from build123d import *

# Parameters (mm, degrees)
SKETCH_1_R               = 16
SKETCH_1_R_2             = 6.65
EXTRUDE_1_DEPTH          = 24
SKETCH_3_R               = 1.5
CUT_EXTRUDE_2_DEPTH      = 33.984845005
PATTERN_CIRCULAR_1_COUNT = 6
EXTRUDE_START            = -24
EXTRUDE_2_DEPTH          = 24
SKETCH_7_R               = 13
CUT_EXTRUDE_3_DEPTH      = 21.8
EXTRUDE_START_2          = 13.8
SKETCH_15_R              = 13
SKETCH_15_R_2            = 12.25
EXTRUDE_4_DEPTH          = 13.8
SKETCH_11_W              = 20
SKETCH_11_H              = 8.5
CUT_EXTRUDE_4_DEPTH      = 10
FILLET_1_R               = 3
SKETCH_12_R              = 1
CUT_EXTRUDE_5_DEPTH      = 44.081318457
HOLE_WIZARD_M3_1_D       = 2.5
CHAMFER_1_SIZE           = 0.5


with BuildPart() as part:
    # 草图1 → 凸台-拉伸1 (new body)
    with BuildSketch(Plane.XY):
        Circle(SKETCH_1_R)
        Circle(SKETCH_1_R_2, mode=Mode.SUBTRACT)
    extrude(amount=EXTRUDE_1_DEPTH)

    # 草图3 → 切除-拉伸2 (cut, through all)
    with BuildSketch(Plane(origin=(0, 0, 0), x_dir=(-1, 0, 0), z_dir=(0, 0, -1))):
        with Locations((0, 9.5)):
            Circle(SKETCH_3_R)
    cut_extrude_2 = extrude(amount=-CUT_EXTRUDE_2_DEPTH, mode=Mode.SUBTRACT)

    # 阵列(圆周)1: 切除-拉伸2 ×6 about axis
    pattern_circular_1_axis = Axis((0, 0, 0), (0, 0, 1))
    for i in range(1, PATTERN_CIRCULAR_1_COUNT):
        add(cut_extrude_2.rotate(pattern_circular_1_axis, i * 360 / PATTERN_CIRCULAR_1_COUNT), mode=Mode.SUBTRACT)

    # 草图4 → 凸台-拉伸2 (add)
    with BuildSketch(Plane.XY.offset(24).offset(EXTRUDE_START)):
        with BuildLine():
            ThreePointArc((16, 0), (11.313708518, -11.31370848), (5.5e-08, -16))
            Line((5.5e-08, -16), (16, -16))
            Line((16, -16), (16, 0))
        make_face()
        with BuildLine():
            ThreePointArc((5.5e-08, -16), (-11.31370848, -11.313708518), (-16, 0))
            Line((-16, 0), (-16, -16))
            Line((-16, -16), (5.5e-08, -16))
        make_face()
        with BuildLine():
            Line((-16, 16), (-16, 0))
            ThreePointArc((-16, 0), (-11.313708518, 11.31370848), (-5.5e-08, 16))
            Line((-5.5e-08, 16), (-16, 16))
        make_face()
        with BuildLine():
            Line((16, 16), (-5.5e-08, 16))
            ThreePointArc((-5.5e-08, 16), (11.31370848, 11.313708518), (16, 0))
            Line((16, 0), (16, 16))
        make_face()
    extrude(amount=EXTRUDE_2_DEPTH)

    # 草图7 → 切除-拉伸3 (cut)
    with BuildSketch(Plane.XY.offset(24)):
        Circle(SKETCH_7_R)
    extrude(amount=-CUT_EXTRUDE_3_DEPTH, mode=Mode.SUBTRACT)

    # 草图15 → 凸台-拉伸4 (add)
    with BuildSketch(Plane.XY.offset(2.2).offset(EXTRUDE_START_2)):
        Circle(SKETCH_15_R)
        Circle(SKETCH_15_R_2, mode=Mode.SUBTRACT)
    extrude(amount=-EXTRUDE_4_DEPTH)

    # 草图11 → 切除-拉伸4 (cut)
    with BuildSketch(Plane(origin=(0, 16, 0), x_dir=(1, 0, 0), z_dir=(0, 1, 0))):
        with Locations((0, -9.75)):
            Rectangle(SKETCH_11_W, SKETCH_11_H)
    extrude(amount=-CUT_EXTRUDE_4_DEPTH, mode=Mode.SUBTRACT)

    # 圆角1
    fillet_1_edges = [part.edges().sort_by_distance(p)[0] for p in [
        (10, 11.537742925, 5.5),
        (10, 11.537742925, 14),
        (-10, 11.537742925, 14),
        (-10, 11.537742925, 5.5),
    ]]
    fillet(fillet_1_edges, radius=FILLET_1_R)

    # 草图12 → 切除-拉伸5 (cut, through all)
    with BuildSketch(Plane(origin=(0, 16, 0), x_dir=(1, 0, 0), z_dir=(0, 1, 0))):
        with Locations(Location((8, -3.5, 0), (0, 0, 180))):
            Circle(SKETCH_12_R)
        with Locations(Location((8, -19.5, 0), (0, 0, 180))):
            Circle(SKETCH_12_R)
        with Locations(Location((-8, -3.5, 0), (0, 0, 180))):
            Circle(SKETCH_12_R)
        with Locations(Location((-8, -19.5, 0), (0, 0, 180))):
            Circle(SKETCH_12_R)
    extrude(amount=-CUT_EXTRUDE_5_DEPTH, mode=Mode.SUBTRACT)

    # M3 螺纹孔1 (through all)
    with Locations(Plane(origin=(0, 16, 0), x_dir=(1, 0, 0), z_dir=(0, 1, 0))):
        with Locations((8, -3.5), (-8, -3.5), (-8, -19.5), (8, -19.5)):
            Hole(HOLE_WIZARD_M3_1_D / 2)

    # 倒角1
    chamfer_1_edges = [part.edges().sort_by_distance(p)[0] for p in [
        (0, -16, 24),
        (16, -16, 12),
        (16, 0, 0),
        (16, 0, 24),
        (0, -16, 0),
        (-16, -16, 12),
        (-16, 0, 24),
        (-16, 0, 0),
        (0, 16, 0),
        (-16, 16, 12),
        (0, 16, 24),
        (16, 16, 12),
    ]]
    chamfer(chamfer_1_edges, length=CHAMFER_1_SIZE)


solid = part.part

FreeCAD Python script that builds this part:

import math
import FreeCAD as App
import Part
import Sketcher

V = App.Vector


def edges_at(feature, points):
    """Names of the edges that pass closest to the given points."""
    edges = feature.Shape.Edges
    near = lambda p: min(range(len(edges)), key=lambda i: edges[i].distToShape(Part.Vertex(*p))[0])
    return sorted({f"Edge{near(p) + 1}" for p in points})


def add_polygon(sketch, points):
    """Adds a closed chain of lines whose ends are joined by coincident constraints."""
    first, n = sketch.GeometryCount, len(points)
    for a, b in zip(points, points[1:] + points[:1]):
        sketch.addGeometry(Part.LineSegment(App.Vector(*a, 0), App.Vector(*b, 0)), False)
    for i in range(n):
        sketch.addConstraint(Sketcher.Constraint("Coincident", first + i, 2, first + (i + 1) % n, 1))

doc = App.newDocument("Part")
body = doc.addObject("PartDesign::Body", "Body")

# Sketch on XY plane
sketch1 = body.newObject("Sketcher::SketchObject", "Sketch")
sketch1.AttachmentSupport = (doc.getObject("XY_Plane"), [""])
sketch1.MapMode = "FlatFace"
sketch1.addGeometry([
    Part.Circle(V(0, 0, 0), V(0, 0, 1), 16),
    Part.Circle(V(0, 0, 0), V(0, 0, 1), 7),
], False)
sketch1.addConstraint([
    Sketcher.Constraint("Coincident", 0, 3, -1, 1),
    Sketcher.Constraint("Coincident", 1, 3, -1, 1),
    Sketcher.Constraint("Diameter", 0, 32.0),
    Sketcher.Constraint("Diameter", 1, 13.3),
])
pad1 = body.newObject("PartDesign::Pad", "Pad")
pad1.Profile = sketch1
pad1.Length = 24

# Sketch on XY plane
sketch2 = body.newObject("Sketcher::SketchObject", "Sketch001")
sketch2.AttachmentSupport = (doc.getObject("XY_Plane"), [""])
sketch2.MapMode = "FlatFace"
sketch2.addGeometry(Part.Circle(V(0, 9.5, 0), V(0, 0, 1), 1.5), False)
sketch2.addConstraint([
    Sketcher.Constraint("PointOnObject", 0, 3, -2),
    Sketcher.Constraint("Diameter", 0, 3.0),
    Sketcher.Constraint("DistanceY", -1, 1, 0, 3, 9.5),
])
pocket1 = body.newObject("PartDesign::Pocket", "Pocket")
pocket1.Profile = sketch2
pocket1.Type = "ThroughAll"
pocket1.Reversed = True
doc.recompute()

polarpattern = body.newObject("PartDesign::PolarPattern", "PolarPattern")
polarpattern.Originals = [pocket1]
polarpattern.Axis = (doc.getObject("Z_Axis"), [""])
polarpattern.Angle = 360
polarpattern.Occurrences = 6
body.Tip = polarpattern

# Sketch on XY plane
sketch3 = body.newObject("Sketcher::SketchObject", "Sketch002")
sketch3.AttachmentSupport = (doc.getObject("XY_Plane"), [""])
sketch3.MapMode = "FlatFace"
sketch3.addGeometry([
    Part.ArcOfCircle(Part.Circle(V(0, 0, 0), V(0, 0, 1), 16), math.radians(-90), math.radians(0)),  # 0
    Part.LineSegment(V(0, -16, 0), V(16, -16, 0)),  # 1
    Part.LineSegment(V(16, -16, 0), V(16, 0, 0)),  # 2
    Part.ArcOfCircle(Part.Circle(V(0, 0, 0), V(0, 0, 1), 16), math.radians(180), math.radians(270)),  # 3
    Part.LineSegment(V(-16, 0, 0), V(-16, -16, 0)),  # 4
    Part.LineSegment(V(-16, -16, 0), V(0, -16, 0)),  # 5
    Part.LineSegment(V(-16, 16, 0), V(-16, 0, 0)),  # 6
    Part.ArcOfCircle(Part.Circle(V(0, 0, 0), V(0, 0, 1), 16), math.radians(90), math.radians(180)),  # 7
    Part.LineSegment(V(0, 16, 0), V(-16, 16, 0)),  # 8
    Part.LineSegment(V(16, 16, 0), V(0, 16, 0)),  # 9
    Part.ArcOfCircle(Part.Circle(V(0, 0, 0), V(0, 0, 1), 16), math.radians(0), math.radians(90)),  # 10
    Part.LineSegment(V(16, 0, 0), V(16, 16, 0)),  # 11
], False)
sketch3.addConstraint([
    Sketcher.Constraint("Tangent", 0, 1, 1, 1),
    Sketcher.Constraint("Coincident", 1, 2, 2, 1),
    Sketcher.Constraint("Tangent", 2, 2, 0, 2),
    Sketcher.Constraint("Tangent", 3, 1, 4, 1),
    Sketcher.Constraint("Coincident", 4, 2, 5, 1),
    Sketcher.Constraint("Tangent", 5, 2, 3, 2),
    Sketcher.Constraint("Tangent", 6, 2, 7, 2),
    Sketcher.Constraint("Tangent", 7, 1, 8, 1),
    Sketcher.Constraint("Coincident", 8, 2, 6, 1),
    Sketcher.Constraint("Tangent", 9, 2, 10, 2),
    Sketcher.Constraint("Tangent", 10, 1, 11, 1),
    Sketcher.Constraint("Coincident", 11, 2, 9, 1),
    Sketcher.Constraint("Horizontal", 1),
    Sketcher.Constraint("Vertical", 2),
    Sketcher.Constraint("Vertical", 4),
    Sketcher.Constraint("Horizontal", 5),
    Sketcher.Constraint("Vertical", 6),
    Sketcher.Constraint("Horizontal", 8),
    Sketcher.Constraint("Horizontal", 9),
    Sketcher.Constraint("Vertical", 11),
    Sketcher.Constraint("Coincident", 0, 3, -1, 1),
    Sketcher.Constraint("Coincident", 3, 3, -1, 1),
    Sketcher.Constraint("Coincident", 7, 3, -1, 1),
    Sketcher.Constraint("Coincident", 10, 3, -1, 1),
    Sketcher.Constraint("Equal", 0, 3),
    Sketcher.Constraint("Equal", 3, 7),
    Sketcher.Constraint("Equal", 7, 10),
    Sketcher.Constraint("Radius", 0, 16.0),
])
pad2 = body.newObject("PartDesign::Pad", "Pad001")
pad2.Profile = sketch3
pad2.Length = 24

# Sketch on XY plane
sketch4 = body.newObject("Sketcher::SketchObject", "Sketch003")
sketch4.AttachmentSupport = (doc.getObject("XY_Plane"), [""])
sketch4.MapMode = "FlatFace"
sketch4.AttachmentOffset = App.Placement(V(0, 0, 24), App.Rotation())
sketch4.addGeometry(Part.Circle(V(0, 0, 0), V(0, 0, 1), 13), False)
sketch4.addConstraint([
    Sketcher.Constraint("Coincident", 0, 3, -1, 1),
    Sketcher.Constraint("Diameter", 0, 26.0),
])
pocket2 = body.newObject("PartDesign::Pocket", "Pocket001")
pocket2.Profile = sketch4
pocket2.Length = 21.8

# Sketch on XY plane
sketch5 = body.newObject("Sketcher::SketchObject", "Sketch004")
sketch5.AttachmentSupport = (doc.getObject("XY_Plane"), [""])
sketch5.MapMode = "FlatFace"
sketch5.AttachmentOffset = App.Placement(V(0, 0, 16), App.Rotation())
sketch5.addGeometry([
    Part.Circle(V(0, 0, 0), V(0, 0, 1), 13),
    Part.Circle(V(0, 0, 0), V(0, 0, 1), 12),
], False)
sketch5.addConstraint([
    Sketcher.Constraint("Coincident", 0, 3, -1, 1),
    Sketcher.Constraint("Coincident", 1, 3, -1, 1),
    Sketcher.Constraint("Diameter", 0, 26.0),
    Sketcher.Constraint("Diameter", 1, 24.5),
])
pad3 = body.newObject("PartDesign::Pad", "Pad002")
pad3.Profile = sketch5
pad3.Length = 13.8
pad3.Reversed = True

# Sketch on XZ plane
sketch6 = body.newObject("Sketcher::SketchObject", "Sketch005")
sketch6.AttachmentSupport = (doc.getObject("XZ_Plane"), [""])
sketch6.MapMode = "FlatFace"
sketch6.AttachmentOffset = App.Placement(V(0, 0, -16), App.Rotation())
add_polygon(sketch6, [(-10, 6), (-10, 14), (10, 14), (10, 6)])  # lines 0-3
sketch6.addConstraint([
    Sketcher.Constraint("Vertical", 0),
    Sketcher.Constraint("Horizontal", 1),
    Sketcher.Constraint("Vertical", 2),
    Sketcher.Constraint("Horizontal", 3),
    Sketcher.Constraint("DistanceX", 1, 1, 1, 2, 20.0),
    Sketcher.Constraint("DistanceY", 0, 1, 0, 2, 8.5),
    Sketcher.Constraint("DistanceX", 0, 2, -1, 1, 10.0),
    Sketcher.Constraint("DistanceY", -1, 1, 0, 2, 14.0),
])
pocket3 = body.newObject("PartDesign::Pocket", "Pocket002")
pocket3.Profile = sketch6
pocket3.Length = 10
pocket3.Reversed = True
doc.recompute()

fillet = body.newObject("PartDesign::Fillet", "Fillet")
fillet.Base = (pocket3, edges_at(pocket3, [
    (10, 11.538, 5.5),
    (10, 11.538, 14),
    (-10, 11.538, 14),
    (-10, 11.538, 5.5),
]))
fillet.Radius = 3

# Sketch on XZ plane
sketch7 = body.newObject("Sketcher::SketchObject", "Sketch006")
sketch7.AttachmentSupport = (doc.getObject("XZ_Plane"), [""])
sketch7.MapMode = "FlatFace"
sketch7.AttachmentOffset = App.Placement(V(0, 0, -16), App.Rotation())
sketch7.addGeometry([
    Part.Circle(V(8, 3.5, 0), V(0, 0, 1), 1),
    Part.Circle(V(8, 19.5, 0), V(0, 0, 1), 1),
    Part.Circle(V(-8, 3.5, 0), V(0, 0, 1), 1),
    Part.Circle(V(-8, 19.5, 0), V(0, 0, 1), 1),
], False)
sketch7.addConstraint([
    Sketcher.Constraint("Equal", 0, 1),
    Sketcher.Constraint("Equal", 1, 2),
    Sketcher.Constraint("Equal", 2, 3),
    Sketcher.Constraint("Symmetric", 0, 3, 2, 3, -2),
    Sketcher.Constraint("Symmetric", 1, 3, 3, 3, -2),
    Sketcher.Constraint("Vertical", 0, 3, 1, 3),
    Sketcher.Constraint("Diameter", 0, 2.0),
    Sketcher.Constraint("DistanceX", -1, 1, 0, 3, 8.0),
    Sketcher.Constraint("DistanceY", 0, 3, 1, 3, 16.0),
    Sketcher.Constraint("DistanceY", -1, 1, 0, 3, 3.5),
])
pocket4 = body.newObject("PartDesign::Pocket", "Pocket003")
pocket4.Profile = sketch7
pocket4.Type = "ThroughAll"
pocket4.Reversed = True

# Sketch on XZ plane
sketch8 = body.newObject("Sketcher::SketchObject", "Sketch007")
sketch8.AttachmentSupport = (doc.getObject("XZ_Plane"), [""])
sketch8.MapMode = "FlatFace"
sketch8.AttachmentOffset = App.Placement(V(0, 0, -16), App.Rotation())
sketch8.addGeometry([
    Part.Circle(V(8, 3.5, 0), V(0, 0, 1), 1.2),
    Part.Circle(V(-8, 3.5, 0), V(0, 0, 1), 1.2),
    Part.Circle(V(-8, 19.5, 0), V(0, 0, 1), 1.2),
    Part.Circle(V(8, 19.5, 0), V(0, 0, 1), 1.2),
], False)
sketch8.addConstraint([
    Sketcher.Constraint("Equal", 0, 1),
    Sketcher.Constraint("Equal", 1, 2),
    Sketcher.Constraint("Equal", 2, 3),
    Sketcher.Constraint("Symmetric", 0, 3, 1, 3, -2),
    Sketcher.Constraint("Symmetric", 2, 3, 3, 3, -2),
    Sketcher.Constraint("Vertical", 1, 3, 2, 3),
    Sketcher.Constraint("Diameter", 0, 2.5),
    Sketcher.Constraint("DistanceX", -1, 1, 0, 3, 8.0),
    Sketcher.Constraint("DistanceY", 1, 3, 2, 3, 16.0),
    Sketcher.Constraint("DistanceY", -1, 1, 0, 3, 3.5),
])
doc.recompute()
hole = body.newObject("PartDesign::Hole", "Hole")
hole.Profile = sketch8
hole.ThreadType = "None"
hole.Diameter = 2.5
hole.DepthType = "ThroughAll"
hole.Reversed = True
doc.recompute()

chamfer = body.newObject("PartDesign::Chamfer", "Chamfer")
chamfer.Base = (hole, edges_at(hole, [
    (0, -16, 24),
    (16, -16, 12),
    (16, 0, 0),
    (16, 0, 24),
    (0, -16, 0),
    (-16, -16, 12),
    (-16, 0, 24),
    (-16, 0, 0),
    (0, 16, 0),
    (-16, 16, 12),
    (0, 16, 24),
    (16, 16, 12),
]))
chamfer.Size = 0.5

doc.recompute()
